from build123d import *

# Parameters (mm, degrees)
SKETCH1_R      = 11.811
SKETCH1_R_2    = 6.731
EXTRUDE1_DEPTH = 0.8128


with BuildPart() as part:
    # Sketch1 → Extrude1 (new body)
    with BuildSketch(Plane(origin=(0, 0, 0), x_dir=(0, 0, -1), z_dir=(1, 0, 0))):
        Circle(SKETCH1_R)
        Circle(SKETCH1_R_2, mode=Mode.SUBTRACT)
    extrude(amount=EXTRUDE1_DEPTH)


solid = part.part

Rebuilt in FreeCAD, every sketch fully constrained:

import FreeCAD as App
import Part
import Sketcher

V = App.Vector
Q = App.Units.Quantity

doc = App.newDocument("Part")
params = doc.addObject("Spreadsheet::Sheet", "Params")
for row, (alias, value) in enumerate([
    ("sketch1_diameter", "0.93 in"),
    ("sketch1_diameter2", "0.53 in"),
    ("pad1_length", "0.032 in"),
], start=1):
    params.set(f"A{row}", alias)
    params.set(f"B{row}", "=" + value)
    params.setAlias(f"B{row}", alias)

body = doc.addObject("PartDesign::Body", "Body")

sketch1 = body.newObject("Sketcher::SketchObject", "Sketch")
sketch1.AttachmentSupport = (doc.getObject("YZ_Plane"), [""])
sketch1.MapMode = "FlatFace"
sketch1.addGeometry(Part.Circle(V(0, 0, 0), V(0, 0, 1), 11.811), False)
sketch1.addGeometry(Part.Circle(V(0, 0, 0), V(0, 0, 1), 6.731), False)
sketch1.addConstraint(Sketcher.Constraint("Coincident", 0, 3, -1, 1))
sketch1.addConstraint(Sketcher.Constraint("Coincident", 1, 3, -1, 1))
sketch1.addConstraint(Sketcher.Constraint("Diameter", 0, Q("0.93 in")))
sketch1.addConstraint(Sketcher.Constraint("Diameter", 1, Q("0.53 in")))
sketch1.setExpression("Constraints[2]", "Params.sketch1_diameter")
sketch1.setExpression("Constraints[3]", "Params.sketch1_diameter2")
pad1 = body.newObject("PartDesign::Pad", "Pad")
pad1.Profile = sketch1
pad1.setExpression("Length", "Params.pad1_length")

doc.recompute()
